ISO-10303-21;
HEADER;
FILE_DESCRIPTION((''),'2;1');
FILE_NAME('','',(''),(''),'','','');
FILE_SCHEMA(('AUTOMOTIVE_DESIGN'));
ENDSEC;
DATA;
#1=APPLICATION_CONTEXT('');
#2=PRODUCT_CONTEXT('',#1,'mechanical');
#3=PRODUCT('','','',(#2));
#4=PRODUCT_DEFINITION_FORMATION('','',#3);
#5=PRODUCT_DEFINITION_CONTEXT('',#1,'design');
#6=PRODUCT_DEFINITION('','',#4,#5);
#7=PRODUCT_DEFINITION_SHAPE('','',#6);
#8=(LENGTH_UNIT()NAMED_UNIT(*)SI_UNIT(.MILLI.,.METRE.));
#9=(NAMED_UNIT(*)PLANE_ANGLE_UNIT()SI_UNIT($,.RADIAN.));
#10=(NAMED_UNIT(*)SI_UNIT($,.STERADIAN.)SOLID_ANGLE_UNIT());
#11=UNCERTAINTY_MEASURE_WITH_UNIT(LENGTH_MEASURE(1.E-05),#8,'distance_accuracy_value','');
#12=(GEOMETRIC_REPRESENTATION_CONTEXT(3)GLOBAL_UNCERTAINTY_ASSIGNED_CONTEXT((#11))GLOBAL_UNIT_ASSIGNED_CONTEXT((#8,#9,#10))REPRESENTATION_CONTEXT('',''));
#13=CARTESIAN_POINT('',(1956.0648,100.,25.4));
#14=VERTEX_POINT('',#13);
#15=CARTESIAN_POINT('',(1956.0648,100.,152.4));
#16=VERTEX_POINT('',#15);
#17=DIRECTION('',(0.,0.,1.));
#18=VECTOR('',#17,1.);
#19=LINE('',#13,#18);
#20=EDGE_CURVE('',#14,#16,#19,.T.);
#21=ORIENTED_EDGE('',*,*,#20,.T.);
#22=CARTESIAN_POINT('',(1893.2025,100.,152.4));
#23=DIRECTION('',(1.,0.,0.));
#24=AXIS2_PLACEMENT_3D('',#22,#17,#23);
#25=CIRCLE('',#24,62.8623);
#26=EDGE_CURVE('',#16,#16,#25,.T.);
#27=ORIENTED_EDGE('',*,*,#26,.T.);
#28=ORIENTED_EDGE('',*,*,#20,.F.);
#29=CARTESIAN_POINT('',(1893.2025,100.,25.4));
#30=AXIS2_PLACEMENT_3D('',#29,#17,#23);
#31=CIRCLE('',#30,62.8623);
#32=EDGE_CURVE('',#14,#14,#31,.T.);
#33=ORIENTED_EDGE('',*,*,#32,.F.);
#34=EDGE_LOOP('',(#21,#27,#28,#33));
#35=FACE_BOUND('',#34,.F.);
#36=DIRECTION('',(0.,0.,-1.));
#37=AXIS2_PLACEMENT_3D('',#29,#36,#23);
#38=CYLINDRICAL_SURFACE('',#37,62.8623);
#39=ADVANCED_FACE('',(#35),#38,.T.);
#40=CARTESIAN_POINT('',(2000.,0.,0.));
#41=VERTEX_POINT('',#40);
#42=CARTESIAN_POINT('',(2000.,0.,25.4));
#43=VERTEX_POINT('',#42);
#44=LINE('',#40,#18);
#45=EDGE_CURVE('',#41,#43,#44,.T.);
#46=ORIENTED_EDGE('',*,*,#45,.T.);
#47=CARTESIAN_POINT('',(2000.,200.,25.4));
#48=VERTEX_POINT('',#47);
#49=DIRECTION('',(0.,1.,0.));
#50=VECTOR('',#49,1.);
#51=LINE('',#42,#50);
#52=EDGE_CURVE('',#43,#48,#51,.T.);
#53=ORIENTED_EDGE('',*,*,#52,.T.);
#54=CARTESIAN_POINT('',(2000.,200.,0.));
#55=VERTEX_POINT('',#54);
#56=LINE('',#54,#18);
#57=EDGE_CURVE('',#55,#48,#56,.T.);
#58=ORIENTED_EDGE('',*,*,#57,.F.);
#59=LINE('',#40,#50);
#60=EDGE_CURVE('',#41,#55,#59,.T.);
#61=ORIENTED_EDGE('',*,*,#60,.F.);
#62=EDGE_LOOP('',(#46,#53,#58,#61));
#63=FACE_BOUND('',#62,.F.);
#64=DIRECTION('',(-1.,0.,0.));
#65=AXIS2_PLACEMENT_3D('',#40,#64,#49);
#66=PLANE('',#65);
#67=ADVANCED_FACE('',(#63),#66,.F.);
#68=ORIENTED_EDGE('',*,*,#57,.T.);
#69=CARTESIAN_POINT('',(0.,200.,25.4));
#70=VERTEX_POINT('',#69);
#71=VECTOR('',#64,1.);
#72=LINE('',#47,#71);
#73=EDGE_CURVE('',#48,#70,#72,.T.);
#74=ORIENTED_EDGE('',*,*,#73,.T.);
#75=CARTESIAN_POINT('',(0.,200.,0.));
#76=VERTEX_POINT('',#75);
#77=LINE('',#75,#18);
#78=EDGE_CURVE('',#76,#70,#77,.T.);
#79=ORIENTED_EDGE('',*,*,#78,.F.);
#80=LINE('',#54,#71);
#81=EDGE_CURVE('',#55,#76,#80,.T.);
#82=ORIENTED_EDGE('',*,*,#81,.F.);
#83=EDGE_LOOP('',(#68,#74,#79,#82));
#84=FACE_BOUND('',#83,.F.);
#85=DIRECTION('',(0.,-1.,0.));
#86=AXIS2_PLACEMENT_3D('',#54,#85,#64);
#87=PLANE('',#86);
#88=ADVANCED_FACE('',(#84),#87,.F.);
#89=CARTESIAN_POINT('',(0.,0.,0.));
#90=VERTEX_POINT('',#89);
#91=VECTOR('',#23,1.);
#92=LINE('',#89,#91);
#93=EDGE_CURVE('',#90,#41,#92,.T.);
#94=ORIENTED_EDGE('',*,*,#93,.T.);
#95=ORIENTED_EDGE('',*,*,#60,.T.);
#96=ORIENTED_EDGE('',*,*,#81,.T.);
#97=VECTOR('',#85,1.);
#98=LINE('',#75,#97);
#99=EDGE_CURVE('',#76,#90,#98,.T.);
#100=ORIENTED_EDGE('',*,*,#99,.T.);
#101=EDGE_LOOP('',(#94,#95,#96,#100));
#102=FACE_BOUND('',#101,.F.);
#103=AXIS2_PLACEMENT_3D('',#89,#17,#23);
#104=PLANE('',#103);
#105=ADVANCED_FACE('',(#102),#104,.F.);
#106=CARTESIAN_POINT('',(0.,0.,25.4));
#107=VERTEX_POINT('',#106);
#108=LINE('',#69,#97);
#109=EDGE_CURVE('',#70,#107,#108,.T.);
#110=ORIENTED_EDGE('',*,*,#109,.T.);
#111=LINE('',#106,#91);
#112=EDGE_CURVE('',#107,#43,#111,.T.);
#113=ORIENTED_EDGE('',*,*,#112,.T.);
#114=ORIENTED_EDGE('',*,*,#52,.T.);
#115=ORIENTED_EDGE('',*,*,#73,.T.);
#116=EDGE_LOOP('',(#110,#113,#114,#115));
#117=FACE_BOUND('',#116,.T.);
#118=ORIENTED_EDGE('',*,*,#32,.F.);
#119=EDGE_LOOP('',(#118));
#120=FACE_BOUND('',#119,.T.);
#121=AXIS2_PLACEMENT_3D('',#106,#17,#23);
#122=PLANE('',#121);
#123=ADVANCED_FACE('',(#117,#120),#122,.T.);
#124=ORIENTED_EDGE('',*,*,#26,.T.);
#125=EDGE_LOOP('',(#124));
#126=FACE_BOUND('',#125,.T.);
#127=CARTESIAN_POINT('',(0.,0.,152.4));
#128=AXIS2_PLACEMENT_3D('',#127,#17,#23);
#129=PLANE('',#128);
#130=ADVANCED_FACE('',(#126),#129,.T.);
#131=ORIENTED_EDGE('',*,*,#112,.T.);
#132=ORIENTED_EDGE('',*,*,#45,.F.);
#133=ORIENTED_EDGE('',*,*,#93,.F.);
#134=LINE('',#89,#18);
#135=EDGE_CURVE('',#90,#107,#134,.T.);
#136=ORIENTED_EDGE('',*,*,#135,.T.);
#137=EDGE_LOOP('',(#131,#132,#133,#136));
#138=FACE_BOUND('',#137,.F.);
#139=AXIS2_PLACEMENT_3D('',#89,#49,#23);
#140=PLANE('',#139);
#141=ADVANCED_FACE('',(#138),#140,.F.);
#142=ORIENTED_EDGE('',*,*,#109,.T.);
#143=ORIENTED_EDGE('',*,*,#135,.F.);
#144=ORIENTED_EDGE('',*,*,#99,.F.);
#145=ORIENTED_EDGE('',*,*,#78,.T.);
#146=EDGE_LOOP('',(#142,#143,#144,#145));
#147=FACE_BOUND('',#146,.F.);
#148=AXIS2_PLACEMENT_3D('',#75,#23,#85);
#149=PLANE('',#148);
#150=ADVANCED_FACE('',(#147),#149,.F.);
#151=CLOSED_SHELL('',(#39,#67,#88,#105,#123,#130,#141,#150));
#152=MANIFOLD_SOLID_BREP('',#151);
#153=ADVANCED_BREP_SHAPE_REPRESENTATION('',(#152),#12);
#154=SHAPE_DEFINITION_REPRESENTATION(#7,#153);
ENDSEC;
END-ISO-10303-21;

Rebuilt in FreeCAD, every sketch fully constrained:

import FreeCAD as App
import Part
import Sketcher
Q = App.Units.Quantity

doc = App.newDocument("Part")
params = doc.addObject("Spreadsheet::Sheet", "Params")
for row, (alias, value) in enumerate([
    ("sketch1_width", "2000 mm"),
    ("sketch1_height", "200 mm"),
    ("pad1_length", "25.4 mm"),
    ("pad2_length", "127 mm"),
], start=1):
    params.set(f"A{row}", alias)
    params.set(f"B{row}", "=" + value)
    params.setAlias(f"B{row}", alias)

body = doc.addObject("PartDesign::Body", "Body")

# Sketch on XY plane
sketch1 = doc.addObject("Sketcher::SketchObject", "Sketch")
body.addObject(sketch1)
sketch1.AttachmentSupport = (doc.XY_Plane, [""])
sketch1.MapMode = "FlatFace"
sketch1.addGeometry([
    Part.LineSegment(App.Vector(0, 200, 0), App.Vector(0, 0, 0)),
    Part.LineSegment(App.Vector(0, 0, 0), App.Vector(2000, 0, 0)),
    Part.LineSegment(App.Vector(2000, 0, 0), App.Vector(2000, 200, 0)),
    Part.LineSegment(App.Vector(2000, 200, 0), App.Vector(0, 200, 0)),
], False)
sketch1.addConstraint([
    Sketcher.Constraint("Coincident", 0, 2, 1, 1),
    Sketcher.Constraint("Coincident", 1, 2, 2, 1),
    Sketcher.Constraint("Coincident", 2, 2, 3, 1),
    Sketcher.Constraint("Coincident", 3, 2, 0, 1),
    Sketcher.Constraint("Vertical", 0),
    Sketcher.Constraint("Horizontal", 1),
    Sketcher.Constraint("Vertical", 2),
    Sketcher.Constraint("Horizontal", 3),
    Sketcher.Constraint("Coincident", 0, 2, -1, 1),
    Sketcher.Constraint("DistanceX", 1, 1, 1, 2, Q("2000 mm")),
    Sketcher.Constraint("DistanceY", 0, 2, 0, 1, Q("200 mm")),
])
sketch1.setExpression("Constraints[9]", "Params.sketch1_width")
sketch1.setExpression("Constraints[10]", "Params.sketch1_height")
pad1 = doc.addObject("PartDesign::Pad", "Pad")
body.addObject(pad1)
pad1.Profile = sketch1
pad1.setExpression("Length", "Params.pad1_length")

# Sketch on XY plane
sketch2 = doc.addObject("Sketcher::SketchObject", "Sketch001")
body.addObject(sketch2)
sketch2.AttachmentSupport = (doc.XY_Plane, [""])
sketch2.MapMode = "FlatFace"
sketch2.AttachmentOffset = App.Placement(App.Vector(0, 0, 25.4), App.Rotation())
sketch2.addGeometry(Part.Circle(App.Vector(1893, 100, 0), App.Vector(0, 0, 1), 63), False)
sketch2.addConstraint([
    Sketcher.Constraint("Diameter", 0, Q("125.7246 mm")),
    Sketcher.Constraint("DistanceY", -1, 1, 0, 3, Q("100 mm")),
    Sketcher.Constraint("DistanceX", -1, 1, 0, 3, Q("1893.2025 mm")),
])
pad2 = doc.addObject("PartDesign::Pad", "Pad001")
body.addObject(pad2)
pad2.Profile = sketch2
pad2.setExpression("Length", "Params.pad2_length")

doc.recompute()
